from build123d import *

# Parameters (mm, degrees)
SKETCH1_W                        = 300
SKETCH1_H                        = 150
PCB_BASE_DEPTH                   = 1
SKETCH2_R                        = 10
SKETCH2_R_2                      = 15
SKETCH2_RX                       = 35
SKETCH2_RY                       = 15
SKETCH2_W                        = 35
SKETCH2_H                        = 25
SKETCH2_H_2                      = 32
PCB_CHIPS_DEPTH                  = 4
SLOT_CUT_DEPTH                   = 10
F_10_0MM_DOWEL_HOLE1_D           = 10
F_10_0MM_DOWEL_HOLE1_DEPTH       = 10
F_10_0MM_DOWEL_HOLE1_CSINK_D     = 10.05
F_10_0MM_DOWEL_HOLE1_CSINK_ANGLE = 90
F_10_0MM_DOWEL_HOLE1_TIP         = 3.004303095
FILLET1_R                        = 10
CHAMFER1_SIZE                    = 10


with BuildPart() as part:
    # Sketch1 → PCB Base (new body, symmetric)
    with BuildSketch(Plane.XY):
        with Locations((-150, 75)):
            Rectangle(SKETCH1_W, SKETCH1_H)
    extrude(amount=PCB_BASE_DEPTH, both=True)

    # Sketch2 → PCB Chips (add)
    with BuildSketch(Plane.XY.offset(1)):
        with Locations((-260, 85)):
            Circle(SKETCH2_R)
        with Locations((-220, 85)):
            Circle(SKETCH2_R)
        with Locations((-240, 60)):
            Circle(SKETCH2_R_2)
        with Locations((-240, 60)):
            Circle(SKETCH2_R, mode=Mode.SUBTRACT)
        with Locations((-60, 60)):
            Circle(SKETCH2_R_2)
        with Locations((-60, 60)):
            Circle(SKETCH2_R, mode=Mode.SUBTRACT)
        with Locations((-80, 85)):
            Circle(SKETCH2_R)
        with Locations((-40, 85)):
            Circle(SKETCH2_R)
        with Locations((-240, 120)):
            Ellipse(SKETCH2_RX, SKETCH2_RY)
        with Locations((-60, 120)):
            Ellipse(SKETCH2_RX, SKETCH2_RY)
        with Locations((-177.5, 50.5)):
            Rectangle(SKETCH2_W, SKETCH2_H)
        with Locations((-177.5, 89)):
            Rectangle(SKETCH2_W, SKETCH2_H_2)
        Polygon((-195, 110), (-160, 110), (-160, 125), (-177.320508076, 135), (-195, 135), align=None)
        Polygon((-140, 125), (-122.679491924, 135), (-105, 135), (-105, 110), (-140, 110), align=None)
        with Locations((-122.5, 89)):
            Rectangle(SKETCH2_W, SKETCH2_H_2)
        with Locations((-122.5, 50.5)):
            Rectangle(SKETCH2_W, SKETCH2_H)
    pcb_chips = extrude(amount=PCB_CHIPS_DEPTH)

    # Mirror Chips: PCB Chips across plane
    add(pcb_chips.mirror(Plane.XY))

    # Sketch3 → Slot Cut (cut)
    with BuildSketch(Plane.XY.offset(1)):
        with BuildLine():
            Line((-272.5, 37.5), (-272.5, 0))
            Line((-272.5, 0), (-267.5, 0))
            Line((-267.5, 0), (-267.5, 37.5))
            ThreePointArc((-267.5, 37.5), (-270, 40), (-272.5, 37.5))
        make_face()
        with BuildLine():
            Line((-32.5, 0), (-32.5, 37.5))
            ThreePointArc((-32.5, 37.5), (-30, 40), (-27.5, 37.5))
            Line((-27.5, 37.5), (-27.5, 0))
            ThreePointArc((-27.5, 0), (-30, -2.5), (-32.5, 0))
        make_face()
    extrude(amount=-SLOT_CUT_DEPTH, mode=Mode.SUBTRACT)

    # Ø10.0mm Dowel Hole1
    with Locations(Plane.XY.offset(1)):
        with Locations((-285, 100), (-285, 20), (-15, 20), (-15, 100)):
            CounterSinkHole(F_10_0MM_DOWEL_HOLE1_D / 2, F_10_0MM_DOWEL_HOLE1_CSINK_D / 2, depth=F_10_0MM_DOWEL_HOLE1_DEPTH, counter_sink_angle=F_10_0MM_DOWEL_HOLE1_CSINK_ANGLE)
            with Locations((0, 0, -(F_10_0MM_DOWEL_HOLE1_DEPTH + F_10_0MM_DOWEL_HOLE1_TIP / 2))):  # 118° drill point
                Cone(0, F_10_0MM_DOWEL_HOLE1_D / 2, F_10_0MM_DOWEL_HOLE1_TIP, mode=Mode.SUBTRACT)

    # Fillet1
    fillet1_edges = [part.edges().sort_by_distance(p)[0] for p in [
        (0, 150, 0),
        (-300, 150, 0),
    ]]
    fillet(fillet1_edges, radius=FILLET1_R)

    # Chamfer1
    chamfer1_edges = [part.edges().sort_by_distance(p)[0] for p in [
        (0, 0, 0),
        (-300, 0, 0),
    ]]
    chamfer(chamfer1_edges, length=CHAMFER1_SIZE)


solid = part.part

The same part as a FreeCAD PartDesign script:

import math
import FreeCAD as App
import Part
import Sketcher

V = App.Vector
Q = App.Units.Quantity


def edges_at(feature, points):
    """Names of the edges that pass closest to the given points."""
    edges = feature.Shape.Edges
    near = lambda p: min(range(len(edges)), key=lambda i: edges[i].distToShape(Part.Vertex(*p))[0])
    return sorted({f"Edge{near(p) + 1}" for p in points})


def add_polygon(sketch, points):
    """Adds a closed chain of lines whose ends are joined by coincident constraints."""
    first, n = sketch.GeometryCount, len(points)
    for a, b in zip(points, points[1:] + points[:1]):
        sketch.addGeometry(Part.LineSegment(App.Vector(*a, 0), App.Vector(*b, 0)), False)
    for i in range(n):
        sketch.addConstraint(Sketcher.Constraint("Coincident", first + i, 2, first + (i + 1) % n, 1))

doc = App.newDocument("Part")
body = doc.addObject("PartDesign::Body", "Body")

# Sketch on XY plane
sketch1 = doc.addObject("Sketcher::SketchObject", "Sketch")
body.addObject(sketch1)
sketch1.AttachmentSupport = (doc.XY_Plane, [""])
sketch1.MapMode = "FlatFace"
add_polygon(sketch1, [(-300, 150), (-300, 0), (0, 0), (0, 150)])  # lines 0-3
sketch1.addConstraint(Sketcher.Constraint("Vertical", 0))
sketch1.addConstraint(Sketcher.Constraint("Horizontal", 1))
sketch1.addConstraint(Sketcher.Constraint("Vertical", 2))
sketch1.addConstraint(Sketcher.Constraint("Horizontal", 3))
sketch1.addConstraint(Sketcher.Constraint("Coincident", 1, 2, -1, 1))
sketch1.addConstraint(Sketcher.Constraint("DistanceX", 1, 1, 1, 2, Q("300 mm")))
sketch1.addConstraint(Sketcher.Constraint("DistanceY", 0, 2, 0, 1, Q("150 mm")))
pad1 = doc.addObject("PartDesign::Pad", "Pad")
body.addObject(pad1)
pad1.Profile = sketch1
pad1.Length = 2
pad1.Midplane = True

# Sketch on XY plane
sketch2 = doc.addObject("Sketcher::SketchObject", "Sketch001")
body.addObject(sketch2)
sketch2.AttachmentSupport = (doc.XY_Plane, [""])
sketch2.MapMode = "FlatFace"
sketch2.AttachmentOffset = App.Placement(V(0, 0, 1), App.Rotation())
sketch2.addGeometry(Part.Circle(V(-260, 85, 0), V(0, 0, 1), 10), False)  # 0
sketch2.addGeometry(Part.Circle(V(-220, 85, 0), V(0, 0, 1), 10), False)  # 1
sketch2.addGeometry(Part.Circle(V(-240, 60, 0), V(0, 0, 1), 15), False)  # 2
sketch2.addGeometry(Part.Circle(V(-240, 60, 0), V(0, 0, 1), 10), False)  # 3
sketch2.addGeometry(Part.Circle(V(-60, 60, 0), V(0, 0, 1), 15), False)  # 4
sketch2.addGeometry(Part.Circle(V(-60, 60, 0), V(0, 0, 1), 10), False)  # 5
sketch2.addGeometry(Part.Circle(V(-80, 85, 0), V(0, 0, 1), 10), False)  # 6
sketch2.addGeometry(Part.Circle(V(-40, 85, 0), V(0, 0, 1), 10), False)  # 7
sketch2.addGeometry(Part.Ellipse(V(-205, 120, 0), V(-240, 135, 0), V(-240, 120, 0)), False)  # 8
sketch2.addGeometry(Part.Ellipse(V(-25, 120, 0), V(-60, 135, 0), V(-60, 120, 0)), False)  # 9
add_polygon(sketch2, [(-195, 63), (-195, 38), (-160, 38), (-160, 63)])  # lines 10-13
add_polygon(sketch2, [(-195, 105), (-195, 73), (-160, 73), (-160, 105)])  # lines 14-17
add_polygon(sketch2, [(-195, 110), (-160, 110), (-160, 125), (-177.320508, 135), (-195, 135)])  # lines 18-22
add_polygon(sketch2, [(-122.679492, 135), (-140, 125), (-140, 110), (-105, 110), (-105, 135)])  # lines 23-27
add_polygon(sketch2, [(-140, 105), (-140, 73), (-105, 73), (-105, 105)])  # lines 28-31
add_polygon(sketch2, [(-140, 63), (-140, 38), (-105, 38), (-105, 63)])  # lines 32-35
sketch2.addConstraint(Sketcher.Constraint("Block", 8))
sketch2.addConstraint(Sketcher.Constraint("Block", 9))
sketch2.addConstraint(Sketcher.Constraint("Vertical", 10))
sketch2.addConstraint(Sketcher.Constraint("Horizontal", 11))
sketch2.addConstraint(Sketcher.Constraint("Vertical", 12))
sketch2.addConstraint(Sketcher.Constraint("Horizontal", 13))
sketch2.addConstraint(Sketcher.Constraint("Vertical", 14))
sketch2.addConstraint(Sketcher.Constraint("Horizontal", 15))
sketch2.addConstraint(Sketcher.Constraint("Vertical", 16))
sketch2.addConstraint(Sketcher.Constraint("Horizontal", 17))
sketch2.addConstraint(Sketcher.Constraint("Horizontal", 18))
sketch2.addConstraint(Sketcher.Constraint("Vertical", 19))
sketch2.addConstraint(Sketcher.Constraint("Horizontal", 21))
sketch2.addConstraint(Sketcher.Constraint("Vertical", 22))
sketch2.addConstraint(Sketcher.Constraint("Vertical", 24))
sketch2.addConstraint(Sketcher.Constraint("Horizontal", 25))
sketch2.addConstraint(Sketcher.Constraint("Vertical", 26))
sketch2.addConstraint(Sketcher.Constraint("Horizontal", 27))
sketch2.addConstraint(Sketcher.Constraint("Vertical", 28))
sketch2.addConstraint(Sketcher.Constraint("Horizontal", 29))
sketch2.addConstraint(Sketcher.Constraint("Vertical", 30))
sketch2.addConstraint(Sketcher.Constraint("Horizontal", 31))
sketch2.addConstraint(Sketcher.Constraint("Vertical", 32))
sketch2.addConstraint(Sketcher.Constraint("Horizontal", 33))
sketch2.addConstraint(Sketcher.Constraint("Vertical", 34))
sketch2.addConstraint(Sketcher.Constraint("Horizontal", 35))
sketch2.addConstraint(Sketcher.Constraint("Coincident", 3, 3, 2, 3))
sketch2.addConstraint(Sketcher.Constraint("Coincident", 5, 3, 4, 3))
sketch2.addConstraint(Sketcher.Constraint("Equal", 0, 1))
sketch2.addConstraint(Sketcher.Constraint("Equal", 1, 3))
sketch2.addConstraint(Sketcher.Constraint("Equal", 2, 4))
sketch2.addConstraint(Sketcher.Constraint("Equal", 3, 5))
sketch2.addConstraint(Sketcher.Constraint("Equal", 5, 6))
sketch2.addConstraint(Sketcher.Constraint("Equal", 6, 7))
sketch2.addConstraint(Sketcher.Constraint("Horizontal", 0, 3, 1, 3))
sketch2.addConstraint(Sketcher.Constraint("Horizontal", 3, 3, 4, 3))
sketch2.addConstraint(Sketcher.Constraint("Horizontal", 1, 3, 6, 3))
sketch2.addConstraint(Sketcher.Constraint("Horizontal", 6, 3, 7, 3))
sketch2.addConstraint(Sketcher.Constraint("Horizontal", 19, 2, 23, 2))
sketch2.addConstraint(Sketcher.Constraint("Horizontal", 22, 2, 24, 2))
sketch2.addConstraint(Sketcher.Constraint("Horizontal", 21, 2, 26, 2))
sketch2.addConstraint(Sketcher.Constraint("Horizontal", 15, 2, 28, 2))
sketch2.addConstraint(Sketcher.Constraint("Horizontal", 17, 2, 30, 2))
sketch2.addConstraint(Sketcher.Constraint("Horizontal", 11, 2, 32, 2))
sketch2.addConstraint(Sketcher.Constraint("Horizontal", 13, 2, 34, 2))
sketch2.addConstraint(Sketcher.Constraint("Vertical", 13, 2, 14, 2))
sketch2.addConstraint(Sketcher.Constraint("Vertical", 12, 2, 15, 2))
sketch2.addConstraint(Sketcher.Constraint("Vertical", 16, 2, 18, 2))
sketch2.addConstraint(Sketcher.Constraint("Vertical", 17, 2, 21, 2))
sketch2.addConstraint(Sketcher.Constraint("Vertical", 24, 2, 28, 2))
sketch2.addConstraint(Sketcher.Constraint("Vertical", 26, 2, 29, 2))
sketch2.addConstraint(Sketcher.Constraint("Vertical", 31, 2, 32, 2))
sketch2.addConstraint(Sketcher.Constraint("Vertical", 30, 2, 33, 2))
sketch2.addConstraint(Sketcher.Constraint("Equal", 18, 25))
sketch2.addConstraint(Sketcher.Constraint("Equal", 21, 27))
sketch2.addConstraint(Sketcher.Constraint("Equal", 12, 22))
sketch2.addConstraint(Sketcher.Constraint("Diameter", 0, Q("20 mm")))
sketch2.addConstraint(Sketcher.Constraint("Diameter", 2, Q("30 mm")))
sketch2.addConstraint(Sketcher.Constraint("DistanceX", 11, 1, 11, 2, Q("35 mm")))
sketch2.addConstraint(Sketcher.Constraint("DistanceY", 10, 2, 10, 1, Q("25 mm")))
sketch2.addConstraint(Sketcher.Constraint("DistanceY", 14, 2, 14, 1, Q("32 mm")))
sketch2.addConstraint(Sketcher.Constraint("DistanceY", 19, 1, 19, 2, Q("15 mm")))
sketch2.addConstraint(Sketcher.Constraint("Angle", 20, Q("150 deg")))
sketch2.addConstraint(Sketcher.Constraint("DistanceX", 0, 3, -1, 1, Q("260 mm")))
sketch2.addConstraint(Sketcher.Constraint("DistanceY", -1, 1, 0, 3, Q("85 mm")))
sketch2.addConstraint(Sketcher.Constraint("DistanceX", 1, 3, -1, 1, Q("220 mm")))
sketch2.addConstraint(Sketcher.Constraint("DistanceX", 2, 3, -1, 1, Q("240 mm")))
sketch2.addConstraint(Sketcher.Constraint("DistanceY", -1, 1, 2, 3, Q("60 mm")))
sketch2.addConstraint(Sketcher.Constraint("DistanceX", 4, 3, -1, 1, Q("60 mm")))
sketch2.addConstraint(Sketcher.Constraint("DistanceX", 6, 3, -1, 1, Q("80 mm")))
sketch2.addConstraint(Sketcher.Constraint("DistanceX", 7, 3, -1, 1, Q("40 mm")))
sketch2.addConstraint(Sketcher.Constraint("DistanceX", 10, 2, -1, 1, Q("195 mm")))
sketch2.addConstraint(Sketcher.Constraint("DistanceY", -1, 1, 10, 2, Q("38 mm")))
sketch2.addConstraint(Sketcher.Constraint("DistanceY", -1, 1, 14, 2, Q("73 mm")))
sketch2.addConstraint(Sketcher.Constraint("DistanceY", -1, 1, 18, 2, Q("110 mm")))
sketch2.addConstraint(Sketcher.Constraint("DistanceX", 23, 2, -1, 1, Q("140 mm")))
pad2 = doc.addObject("PartDesign::Pad", "Pad001")
body.addObject(pad2)
pad2.Profile = sketch2
pad2.Length = 4
doc.recompute()

mirrored = doc.addObject("PartDesign::Mirrored", "Mirrored")
body.addObject(mirrored)
mirrored.Originals = [pad2]
mirrored.MirrorPlane = (doc.XY_Plane, [""])
body.Tip = mirrored

# Sketch on XY plane
sketch3 = doc.addObject("Sketcher::SketchObject", "Sketch002")
body.addObject(sketch3)
sketch3.AttachmentSupport = (doc.XY_Plane, [""])
sketch3.MapMode = "FlatFace"
sketch3.AttachmentOffset = App.Placement(V(0, 0, 1), App.Rotation())
sketch3.addGeometry(Part.LineSegment(V(-272.5, 37.5, 0), V(-272.5, 0, 0)), False)
sketch3.addGeometry(Part.LineSegment(V(-272.5, 0, 0), V(-267.5, 0, 0)), False)
sketch3.addGeometry(Part.LineSegment(V(-267.5, 0, 0), V(-267.5, 37.5, 0)), False)
sketch3.addGeometry(Part.ArcOfCircle(Part.Circle(V(-270, 37.5, 0), V(0, 0, 1), 2.5), math.radians(0), math.radians(180)), False)
sketch3.addGeometry(Part.LineSegment(V(-32.5, 37.5, 0), V(-32.5, 0, 0)), False)
sketch3.addGeometry(Part.ArcOfCircle(Part.Circle(V(-30, 0, 0), V(0, 0, 1), 2.5), math.radians(180), math.radians(360)), False)
sketch3.addGeometry(Part.LineSegment(V(-27.5, 0, 0), V(-27.5, 37.5, 0)), False)
sketch3.addGeometry(Part.ArcOfCircle(Part.Circle(V(-30, 37.5, 0), V(0, 0, 1), 2.5), math.radians(0), math.radians(180)), False)
sketch3.addConstraint(Sketcher.Constraint("Coincident", 0, 2, 1, 1))
sketch3.addConstraint(Sketcher.Constraint("Coincident", 1, 2, 2, 1))
sketch3.addConstraint(Sketcher.Constraint("Tangent", 2, 2, 3, 1))
sketch3.addConstraint(Sketcher.Constraint("Tangent", 3, 2, 0, 1))
sketch3.addConstraint(Sketcher.Constraint("Tangent", 4, 2, 5, 1))
sketch3.addConstraint(Sketcher.Constraint("Tangent", 5, 2, 6, 1))
sketch3.addConstraint(Sketcher.Constraint("Tangent", 6, 2, 7, 1))
sketch3.addConstraint(Sketcher.Constraint("Tangent", 7, 2, 4, 1))
sketch3.addConstraint(Sketcher.Constraint("Vertical", 0))
sketch3.addConstraint(Sketcher.Constraint("Horizontal", 1))
sketch3.addConstraint(Sketcher.Constraint("Vertical", 2))
sketch3.addConstraint(Sketcher.Constraint("Vertical", 4))
sketch3.addConstraint(Sketcher.Constraint("Vertical", 6))
sketch3.addConstraint(Sketcher.Constraint("Equal", 3, 5))
sketch3.addConstraint(Sketcher.Constraint("PointOnObject", 5, 3, -1))
sketch3.addConstraint(Sketcher.Constraint("PointOnObject", 0, 2, -1))
sketch3.addConstraint(Sketcher.Constraint("Horizontal", 3, 3, 7, 3))
sketch3.addConstraint(Sketcher.Constraint("Radius", 3, Q("2.5 mm")))
sketch3.addConstraint(Sketcher.Constraint("DistanceY", 0, 2, 0, 1, Q("37.5 mm")))
sketch3.addConstraint(Sketcher.Constraint("DistanceX", 3, 3, -1, 1, Q("270 mm")))
sketch3.addConstraint(Sketcher.Constraint("DistanceX", 5, 3, -1, 1, Q("30 mm")))
pocket1 = doc.addObject("PartDesign::Pocket", "Pocket")
body.addObject(pocket1)
pocket1.Profile = sketch3
pocket1.Length = 10

# Sketch on XY plane
sketch4 = doc.addObject("Sketcher::SketchObject", "Sketch003")
body.addObject(sketch4)
sketch4.AttachmentSupport = (doc.XY_Plane, [""])
sketch4.MapMode = "FlatFace"
sketch4.AttachmentOffset = App.Placement(V(0, 0, 1), App.Rotation())
sketch4.addGeometry(Part.Circle(V(-285, 100, 0), V(0, 0, 1), 5), False)
sketch4.addGeometry(Part.Circle(V(-285, 20, 0), V(0, 0, 1), 5), False)
sketch4.addGeometry(Part.Circle(V(-15, 20, 0), V(0, 0, 1), 5), False)
sketch4.addGeometry(Part.Circle(V(-15, 100, 0), V(0, 0, 1), 5), False)
sketch4.addConstraint(Sketcher.Constraint("Equal", 0, 1))
sketch4.addConstraint(Sketcher.Constraint("Equal", 1, 2))
sketch4.addConstraint(Sketcher.Constraint("Equal", 2, 3))
sketch4.addConstraint(Sketcher.Constraint("Horizontal", 1, 3, 2, 3))
sketch4.addConstraint(Sketcher.Constraint("Horizontal", 0, 3, 3, 3))
sketch4.addConstraint(Sketcher.Constraint("Vertical", 0, 3, 1, 3))
sketch4.addConstraint(Sketcher.Constraint("Vertical", 2, 3, 3, 3))
sketch4.addConstraint(Sketcher.Constraint("Diameter", 0, Q("10 mm")))
sketch4.addConstraint(Sketcher.Constraint("DistanceX", 0, 3, -1, 1, Q("285 mm")))
sketch4.addConstraint(Sketcher.Constraint("DistanceY", -1, 1, 0, 3, Q("100 mm")))
sketch4.addConstraint(Sketcher.Constraint("DistanceY", -1, 1, 1, 3, Q("20 mm")))
sketch4.addConstraint(Sketcher.Constraint("DistanceX", 2, 3, -1, 1, Q("15 mm")))
doc.recompute()
hole = doc.addObject("PartDesign::Hole", "Hole")
body.addObject(hole)
hole.Profile = sketch4
hole.ThreadType = "None"
hole.Diameter = 10
hole.DepthType = "Dimension"
hole.Depth = 10
hole.DrillPoint = "Angled"
hole.DrillPointAngle = 118
hole.HoleCutType = "Countersink"
hole.HoleCutDiameter = 10.05
hole.HoleCutCountersinkAngle = 90
doc.recompute()

fillet = doc.addObject("PartDesign::Fillet", "Fillet")
body.addObject(fillet)
fillet.Base = (hole, edges_at(hole, [(0, 150, 0), (-300, 150, 0)]))
fillet.Radius = 10
doc.recompute()

chamfer = doc.addObject("PartDesign::Chamfer", "Chamfer")
body.addObject(chamfer)
chamfer.Base = (fillet, edges_at(fillet, [(0, 0, 0), (-300, 0, 0)]))
chamfer.Size = 10

doc.recompute()
